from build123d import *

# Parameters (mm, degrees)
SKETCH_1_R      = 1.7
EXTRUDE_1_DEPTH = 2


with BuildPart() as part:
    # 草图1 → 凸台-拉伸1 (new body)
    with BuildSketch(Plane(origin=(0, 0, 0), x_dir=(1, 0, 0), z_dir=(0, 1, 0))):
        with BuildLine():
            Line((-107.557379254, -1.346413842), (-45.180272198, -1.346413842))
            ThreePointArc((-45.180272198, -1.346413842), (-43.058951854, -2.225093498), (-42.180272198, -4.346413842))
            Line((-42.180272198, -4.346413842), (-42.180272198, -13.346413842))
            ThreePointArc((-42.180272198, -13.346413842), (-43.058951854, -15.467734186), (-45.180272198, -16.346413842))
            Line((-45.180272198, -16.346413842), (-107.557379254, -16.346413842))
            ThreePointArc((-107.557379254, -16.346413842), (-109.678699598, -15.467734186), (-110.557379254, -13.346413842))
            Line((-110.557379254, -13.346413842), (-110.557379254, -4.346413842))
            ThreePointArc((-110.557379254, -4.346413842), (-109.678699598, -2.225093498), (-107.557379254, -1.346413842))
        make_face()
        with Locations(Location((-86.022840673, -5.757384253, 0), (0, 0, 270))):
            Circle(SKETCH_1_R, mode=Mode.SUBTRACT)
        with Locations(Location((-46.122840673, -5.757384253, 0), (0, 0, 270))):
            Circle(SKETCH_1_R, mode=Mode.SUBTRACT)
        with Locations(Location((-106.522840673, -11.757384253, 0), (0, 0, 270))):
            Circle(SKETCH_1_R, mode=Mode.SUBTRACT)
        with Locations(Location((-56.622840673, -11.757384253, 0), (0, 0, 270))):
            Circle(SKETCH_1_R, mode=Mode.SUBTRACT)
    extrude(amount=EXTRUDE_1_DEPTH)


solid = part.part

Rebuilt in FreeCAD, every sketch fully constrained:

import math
import FreeCAD as App
import Part
import Sketcher
from FreeCAD import Vector
Q = App.Units.Quantity

doc = App.newDocument("Part")
body = doc.addObject("PartDesign::Body", "Body")

sketch1 = body.newObject("Sketcher::SketchObject", "Sketch")
sketch1.AttachmentSupport = (doc.getObject("XZ_Plane"), [""])
sketch1.MapMode = "FlatFace"
sketch1.addGeometry([
    Part.LineSegment(Vector(-45.180272, 1.346414, 0), Vector(-107.557379, 1.346414, 0)),
    Part.ArcOfCircle(Part.Circle(Vector(-107.557379, 4.346414, 0), Vector(0, 0, 1), 3), math.radians(180), math.radians(270)),
    Part.LineSegment(Vector(-110.557379, 4.346414, 0), Vector(-110.557379, 13.346414, 0)),
    Part.ArcOfCircle(Part.Circle(Vector(-107.557379, 13.346414, 0), Vector(0, 0, 1), 3), math.radians(90), math.radians(180)),
    Part.LineSegment(Vector(-107.557379, 16.346414, 0), Vector(-45.180272, 16.346414, 0)),
    Part.ArcOfCircle(Part.Circle(Vector(-45.180272, 13.346414, 0), Vector(0, 0, 1), 3), math.radians(0), math.radians(90)),
    Part.LineSegment(Vector(-42.180272, 13.346414, 0), Vector(-42.180272, 4.346414, 0)),
    Part.ArcOfCircle(Part.Circle(Vector(-45.180272, 4.346414, 0), Vector(0, 0, 1), 3), math.radians(-90), math.radians(0)),
    Part.Circle(Vector(-56.622841, 11.757384, 0), Vector(0, 0, 1), 1.7),
    Part.Circle(Vector(-106.522841, 11.757384, 0), Vector(0, 0, 1), 1.7),
    Part.Circle(Vector(-46.122841, 5.757384, 0), Vector(0, 0, 1), 1.7),
    Part.Circle(Vector(-86.022841, 5.757384, 0), Vector(0, 0, 1), 1.7),
], False)
sketch1.addConstraint([
    Sketcher.Constraint("Tangent", 0, 2, 1, 2),
    Sketcher.Constraint("Tangent", 1, 1, 2, 1),
    Sketcher.Constraint("Tangent", 2, 2, 3, 2),
    Sketcher.Constraint("Tangent", 3, 1, 4, 1),
    Sketcher.Constraint("Tangent", 4, 2, 5, 2),
    Sketcher.Constraint("Tangent", 5, 1, 6, 1),
    Sketcher.Constraint("Tangent", 6, 2, 7, 2),
    Sketcher.Constraint("Tangent", 7, 1, 0, 1),
    Sketcher.Constraint("Horizontal", 0),
    Sketcher.Constraint("Vertical", 2),
    Sketcher.Constraint("Horizontal", 4),
    Sketcher.Constraint("Vertical", 6),
    Sketcher.Constraint("Equal", 1, 3),
    Sketcher.Constraint("Equal", 3, 5),
    Sketcher.Constraint("Equal", 5, 7),
    Sketcher.Constraint("Equal", 8, 9),
    Sketcher.Constraint("Equal", 9, 10),
    Sketcher.Constraint("Equal", 10, 11),
    Sketcher.Constraint("Horizontal", 8, 3, 9, 3),
    Sketcher.Constraint("Horizontal", 10, 3, 11, 3),
    Sketcher.Constraint("Radius", 1, Q("3 mm")),
    Sketcher.Constraint("Diameter", 8, Q("3.4 mm")),
    Sketcher.Constraint("DistanceY", 2, 1, 2, 2, Q("9 mm")),
    Sketcher.Constraint("DistanceY", 10, 3, 8, 3, Q("6 mm")),
    Sketcher.Constraint("DistanceX", 9, 3, 8, 3, Q("49.9 mm")),
    Sketcher.Constraint("DistanceX", 8, 3, 10, 3, Q("10.5 mm")),
    Sketcher.Constraint("DistanceX", 9, 3, 11, 3, Q("20.5 mm")),
    Sketcher.Constraint("DistanceX", 0, 2, 0, 1, Q("62.377107 mm")),
    Sketcher.Constraint("DistanceX", 1, 3, -1, 1, Q("107.557379 mm")),
    Sketcher.Constraint("DistanceX", 8, 3, -1, 1, Q("56.622841 mm")),
    Sketcher.Constraint("DistanceY", 8, 3, 5, 3, Q("1.58903 mm")),
    Sketcher.Constraint("DistanceY", -1, 1, 1, 3, Q("4.346414 mm")),
])
pad1 = body.newObject("PartDesign::Pad", "Pad")
pad1.Profile = sketch1
pad1.Length = 2
pad1.Reversed = True

doc.recompute()
